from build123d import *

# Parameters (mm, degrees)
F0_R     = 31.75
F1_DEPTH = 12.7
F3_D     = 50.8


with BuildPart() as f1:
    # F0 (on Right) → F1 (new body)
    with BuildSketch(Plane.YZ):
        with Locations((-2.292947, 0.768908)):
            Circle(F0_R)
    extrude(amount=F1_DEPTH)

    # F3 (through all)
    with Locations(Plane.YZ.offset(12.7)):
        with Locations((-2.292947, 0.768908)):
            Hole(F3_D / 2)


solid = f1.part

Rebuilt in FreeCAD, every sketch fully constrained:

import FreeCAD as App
import Part
import Sketcher

V = App.Vector
Q = App.Units.Quantity

doc = App.newDocument("Part")
params = doc.addObject("Spreadsheet::Sheet", "Params")
for row, (alias, value) in enumerate([
    ("sketch1_diameter", "2.5 in"),
    ("pad1_length", "0.5 in"),
    ("sketch2_diameter", "2 in"),
    ("hole_diameter", "2 in"),
], start=1):
    params.set(f"A{row}", alias)
    params.set(f"B{row}", "=" + value)
    params.setAlias(f"B{row}", alias)

body = doc.addObject("PartDesign::Body", "Body")

sketch1 = doc.addObject("Sketcher::SketchObject", "Sketch")
body.addObject(sketch1)
sketch1.AttachmentSupport = (doc.YZ_Plane, [""])
sketch1.MapMode = "FlatFace"
sketch1.addGeometry(Part.Circle(V(-2, 1, 0), V(0, 0, 1), 32), False)
sketch1.addConstraint([
    Sketcher.Constraint("Diameter", 0, Q("2.5 in")),
    Sketcher.Constraint("DistanceY", -1, 1, 0, 3, 0.768908),
    Sketcher.Constraint("DistanceX", 0, 3, -1, 1, 2.292947),
])
sketch1.setExpression("Constraints[0]", "Params.sketch1_diameter")
pad1 = doc.addObject("PartDesign::Pad", "Pad")
body.addObject(pad1)
pad1.Profile = sketch1
pad1.setExpression("Length", "Params.pad1_length")

sketch2 = doc.addObject("Sketcher::SketchObject", "Sketch001")
body.addObject(sketch2)
sketch2.AttachmentSupport = (doc.YZ_Plane, [""])
sketch2.MapMode = "FlatFace"
sketch2.AttachmentOffset = App.Placement(V(0, 0, 0.5 * 25.4), App.Rotation())
sketch2.addGeometry(Part.Circle(V(-2, 1, 0), V(0, 0, 1), 25), False)
sketch2.addConstraint([
    Sketcher.Constraint("Diameter", 0, Q("2 in")),
    Sketcher.Constraint("DistanceY", -1, 1, 0, 3, 0.768908),
    Sketcher.Constraint("DistanceX", 0, 3, -1, 1, 2.292947),
])
sketch2.setExpression("Constraints[0]", "Params.sketch2_diameter")
doc.recompute()
hole = doc.addObject("PartDesign::Hole", "Hole")
body.addObject(hole)
hole.Profile = sketch2
hole.ThreadType = "None"
hole.setExpression("Diameter", "Params.hole_diameter")
hole.DepthType = "ThroughAll"

doc.recompute()
